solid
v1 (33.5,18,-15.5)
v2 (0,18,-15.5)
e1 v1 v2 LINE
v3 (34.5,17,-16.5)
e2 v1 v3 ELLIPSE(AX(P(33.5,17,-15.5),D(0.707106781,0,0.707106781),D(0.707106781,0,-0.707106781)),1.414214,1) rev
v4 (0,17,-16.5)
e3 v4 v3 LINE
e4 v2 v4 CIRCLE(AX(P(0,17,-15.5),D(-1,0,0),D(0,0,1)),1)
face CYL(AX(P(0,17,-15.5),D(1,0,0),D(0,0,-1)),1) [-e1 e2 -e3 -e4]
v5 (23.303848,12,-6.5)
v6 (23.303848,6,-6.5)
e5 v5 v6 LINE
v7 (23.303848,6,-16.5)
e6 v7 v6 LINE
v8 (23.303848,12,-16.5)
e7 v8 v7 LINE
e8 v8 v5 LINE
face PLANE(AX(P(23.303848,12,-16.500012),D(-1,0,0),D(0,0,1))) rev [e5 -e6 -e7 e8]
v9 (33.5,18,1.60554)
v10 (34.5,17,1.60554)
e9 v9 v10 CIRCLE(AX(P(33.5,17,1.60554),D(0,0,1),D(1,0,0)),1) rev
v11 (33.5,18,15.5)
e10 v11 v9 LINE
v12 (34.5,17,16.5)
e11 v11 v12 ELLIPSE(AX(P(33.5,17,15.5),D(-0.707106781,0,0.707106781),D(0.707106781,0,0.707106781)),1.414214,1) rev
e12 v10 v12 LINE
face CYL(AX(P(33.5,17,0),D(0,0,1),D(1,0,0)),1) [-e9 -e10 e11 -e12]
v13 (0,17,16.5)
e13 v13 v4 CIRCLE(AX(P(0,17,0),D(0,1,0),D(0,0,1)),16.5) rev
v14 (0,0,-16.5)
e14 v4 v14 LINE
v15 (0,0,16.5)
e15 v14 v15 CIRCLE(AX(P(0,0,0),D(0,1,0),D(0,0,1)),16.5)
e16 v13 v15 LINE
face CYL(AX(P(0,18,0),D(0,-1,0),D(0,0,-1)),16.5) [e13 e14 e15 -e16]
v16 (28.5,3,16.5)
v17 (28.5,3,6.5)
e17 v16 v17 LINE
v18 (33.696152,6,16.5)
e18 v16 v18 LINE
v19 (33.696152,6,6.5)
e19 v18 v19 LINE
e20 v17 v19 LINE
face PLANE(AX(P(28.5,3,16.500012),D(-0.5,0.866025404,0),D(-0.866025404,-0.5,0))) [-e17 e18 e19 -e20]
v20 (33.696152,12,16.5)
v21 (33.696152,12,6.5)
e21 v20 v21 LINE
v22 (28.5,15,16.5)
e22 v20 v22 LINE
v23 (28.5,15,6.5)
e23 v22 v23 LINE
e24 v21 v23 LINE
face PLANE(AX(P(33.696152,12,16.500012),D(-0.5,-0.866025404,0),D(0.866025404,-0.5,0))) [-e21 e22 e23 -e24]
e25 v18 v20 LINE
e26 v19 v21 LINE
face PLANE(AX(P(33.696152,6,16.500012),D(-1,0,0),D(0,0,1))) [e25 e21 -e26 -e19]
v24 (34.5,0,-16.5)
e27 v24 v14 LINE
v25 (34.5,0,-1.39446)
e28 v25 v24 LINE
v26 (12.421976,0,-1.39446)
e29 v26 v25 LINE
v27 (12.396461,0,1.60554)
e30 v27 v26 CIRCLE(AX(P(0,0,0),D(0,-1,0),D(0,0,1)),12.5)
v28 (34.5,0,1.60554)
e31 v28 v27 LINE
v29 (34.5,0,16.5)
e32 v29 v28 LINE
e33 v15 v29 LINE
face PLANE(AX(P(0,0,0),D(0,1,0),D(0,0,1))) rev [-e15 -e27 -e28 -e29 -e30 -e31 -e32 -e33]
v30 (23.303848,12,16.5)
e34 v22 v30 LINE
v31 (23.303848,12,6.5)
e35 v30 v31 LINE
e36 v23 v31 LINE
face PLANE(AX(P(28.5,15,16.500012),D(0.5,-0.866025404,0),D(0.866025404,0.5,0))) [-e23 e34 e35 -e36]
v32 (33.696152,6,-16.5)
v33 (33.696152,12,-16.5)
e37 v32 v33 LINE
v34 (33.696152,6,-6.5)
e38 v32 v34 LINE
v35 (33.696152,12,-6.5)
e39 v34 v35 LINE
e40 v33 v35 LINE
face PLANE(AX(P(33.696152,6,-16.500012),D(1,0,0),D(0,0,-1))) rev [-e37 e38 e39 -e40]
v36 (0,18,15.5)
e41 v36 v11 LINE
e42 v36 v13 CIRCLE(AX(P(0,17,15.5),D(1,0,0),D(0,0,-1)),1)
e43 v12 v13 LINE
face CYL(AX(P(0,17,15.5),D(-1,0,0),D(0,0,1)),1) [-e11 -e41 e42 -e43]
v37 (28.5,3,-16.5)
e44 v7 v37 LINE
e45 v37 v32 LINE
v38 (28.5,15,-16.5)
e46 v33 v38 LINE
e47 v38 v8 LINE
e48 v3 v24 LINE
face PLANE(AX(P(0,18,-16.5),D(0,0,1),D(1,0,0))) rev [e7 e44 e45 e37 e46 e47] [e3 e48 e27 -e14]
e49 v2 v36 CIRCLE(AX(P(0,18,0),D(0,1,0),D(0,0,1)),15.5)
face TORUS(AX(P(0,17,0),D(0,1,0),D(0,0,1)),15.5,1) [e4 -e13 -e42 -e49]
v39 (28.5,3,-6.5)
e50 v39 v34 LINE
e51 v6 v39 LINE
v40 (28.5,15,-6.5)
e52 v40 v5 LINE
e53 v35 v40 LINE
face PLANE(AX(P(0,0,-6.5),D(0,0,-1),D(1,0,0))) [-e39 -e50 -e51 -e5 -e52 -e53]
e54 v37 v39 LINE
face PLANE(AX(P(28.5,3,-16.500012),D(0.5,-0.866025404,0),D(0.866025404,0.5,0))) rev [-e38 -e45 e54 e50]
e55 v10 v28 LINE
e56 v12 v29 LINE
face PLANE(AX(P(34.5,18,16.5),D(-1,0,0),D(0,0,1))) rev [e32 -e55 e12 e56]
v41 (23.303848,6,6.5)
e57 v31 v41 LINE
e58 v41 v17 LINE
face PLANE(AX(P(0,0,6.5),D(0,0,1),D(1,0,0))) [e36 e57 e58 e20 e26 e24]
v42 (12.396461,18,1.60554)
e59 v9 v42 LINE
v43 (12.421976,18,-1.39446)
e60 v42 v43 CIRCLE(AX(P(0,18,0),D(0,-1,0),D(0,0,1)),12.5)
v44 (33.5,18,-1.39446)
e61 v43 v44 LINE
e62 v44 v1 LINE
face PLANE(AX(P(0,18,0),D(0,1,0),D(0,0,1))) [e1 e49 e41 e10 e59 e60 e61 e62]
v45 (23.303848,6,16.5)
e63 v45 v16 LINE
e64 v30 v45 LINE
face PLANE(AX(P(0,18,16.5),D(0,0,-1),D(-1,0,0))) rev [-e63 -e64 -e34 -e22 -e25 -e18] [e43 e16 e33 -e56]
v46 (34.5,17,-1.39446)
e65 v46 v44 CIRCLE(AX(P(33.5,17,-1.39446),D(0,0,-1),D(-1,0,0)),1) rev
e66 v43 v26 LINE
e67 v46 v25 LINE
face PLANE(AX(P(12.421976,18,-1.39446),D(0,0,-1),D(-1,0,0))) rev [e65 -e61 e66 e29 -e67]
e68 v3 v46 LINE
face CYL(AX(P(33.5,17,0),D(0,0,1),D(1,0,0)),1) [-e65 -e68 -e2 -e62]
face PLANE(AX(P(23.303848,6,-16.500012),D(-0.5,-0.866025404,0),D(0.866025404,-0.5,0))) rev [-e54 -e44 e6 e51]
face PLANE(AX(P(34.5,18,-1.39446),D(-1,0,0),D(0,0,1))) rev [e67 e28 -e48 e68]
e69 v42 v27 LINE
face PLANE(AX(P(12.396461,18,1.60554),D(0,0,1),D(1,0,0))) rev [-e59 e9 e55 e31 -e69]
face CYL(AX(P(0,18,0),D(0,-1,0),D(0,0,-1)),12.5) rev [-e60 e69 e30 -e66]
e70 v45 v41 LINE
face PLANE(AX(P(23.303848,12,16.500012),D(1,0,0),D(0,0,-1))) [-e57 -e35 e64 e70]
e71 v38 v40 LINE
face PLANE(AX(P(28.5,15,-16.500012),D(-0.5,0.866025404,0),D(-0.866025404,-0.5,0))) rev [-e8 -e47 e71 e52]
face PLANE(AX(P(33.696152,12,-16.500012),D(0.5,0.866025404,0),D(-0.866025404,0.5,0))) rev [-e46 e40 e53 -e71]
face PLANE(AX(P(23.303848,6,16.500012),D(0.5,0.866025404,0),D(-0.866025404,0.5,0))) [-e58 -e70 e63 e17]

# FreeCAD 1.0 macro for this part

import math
import FreeCAD as App
import Part
import Sketcher
from FreeCAD import Vector
Q = App.Units.Quantity


def edges_at(feature, points):
    """Names of the edges that pass closest to the given points."""
    edges = feature.Shape.Edges
    near = lambda p: min(range(len(edges)), key=lambda i: edges[i].distToShape(Part.Vertex(*p))[0])
    return sorted({f"Edge{near(p) + 1}" for p in points})

doc = App.newDocument("Part")
params = doc.addObject("Spreadsheet::Sheet", "Params")
for row, (alias, value) in enumerate([
    ("sketch1_radius", "12.5 mm"),
    ("sketch1_radius2", "16.5 mm"),
    ("sketch1_width", "34.5 mm"),
    ("pad1_length", "18 mm"),
    ("fillet_radius", "1 mm"),
    ("sketch2_height", "6 mm"),
    ("sketch2_length", "6 mm"),
    ("pocket1_length", "62.022054 mm"),
], start=1):
    params.set(f"A{row}", alias)
    params.set(f"B{row}", "=" + value)
    params.setAlias(f"B{row}", alias)

body = doc.addObject("PartDesign::Body", "Body")

sketch1 = body.newObject("Sketcher::SketchObject", "Sketch")
sketch1.AttachmentSupport = (doc.getObject("XZ_Plane"), [""])
sketch1.MapMode = "FlatFace"
sketch1.addGeometry([
    Part.LineSegment(Vector(0, 16.5, 0), Vector(34.5, 16.5, 0)),
    Part.LineSegment(Vector(34.5, 16.5, 0), Vector(34.5, 1.6, 0)),
    Part.LineSegment(Vector(34.5, 1.6, 0), Vector(12.4, 1.6, 0)),
    Part.ArcOfCircle(Part.Circle(Vector(0, 0, 0), Vector(0, 0, 1), 12.5), math.radians(7), math.radians(354)),
    Part.LineSegment(Vector(12.4, -1.4, 0), Vector(34.5, -1.4, 0)),
    Part.LineSegment(Vector(34.5, -1.4, 0), Vector(34.5, -16.5, 0)),
    Part.LineSegment(Vector(34.5, -16.5, 0), Vector(0, -16.5, 0)),
    Part.ArcOfCircle(Part.Circle(Vector(0, 0, 0), Vector(0, 0, 1), 16.5), math.radians(90), math.radians(270)),
], False)
sketch1.addConstraint([
    Sketcher.Constraint("Coincident", 0, 2, 1, 1),
    Sketcher.Constraint("Coincident", 1, 2, 2, 1),
    Sketcher.Constraint("Coincident", 2, 2, 3, 1),
    Sketcher.Constraint("Coincident", 3, 2, 4, 1),
    Sketcher.Constraint("Coincident", 4, 2, 5, 1),
    Sketcher.Constraint("Coincident", 5, 2, 6, 1),
    Sketcher.Constraint("Tangent", 6, 2, 7, 2),
    Sketcher.Constraint("Tangent", 7, 1, 0, 1),
    Sketcher.Constraint("Horizontal", 0),
    Sketcher.Constraint("Vertical", 1),
    Sketcher.Constraint("Horizontal", 2),
    Sketcher.Constraint("Horizontal", 4),
    Sketcher.Constraint("Vertical", 5),
    Sketcher.Constraint("Horizontal", 6),
    Sketcher.Constraint("Coincident", 3, 3, -1, 1),
    Sketcher.Constraint("Coincident", 7, 3, -1, 1),
    Sketcher.Constraint("Vertical", 1, 2, 4, 2),
    Sketcher.Constraint("Radius", 3, Q("12.5 mm")),
    Sketcher.Constraint("Radius", 7, Q("16.5 mm")),
    Sketcher.Constraint("DistanceX", 0, 1, 0, 2, Q("34.5 mm")),
    Sketcher.Constraint("DistanceY", 3, 2, 2, 2, Q("3 mm")),
    Sketcher.Constraint("DistanceX", 2, 2, 2, 1, Q("22.103539 mm")),
])
sketch1.setExpression("Constraints[17]", "Params.sketch1_radius")
sketch1.setExpression("Constraints[18]", "Params.sketch1_radius2")
sketch1.setExpression("Constraints[19]", "Params.sketch1_width")
pad1 = body.newObject("PartDesign::Pad", "Pad")
pad1.Profile = sketch1
pad1.setExpression("Length", "Params.pad1_length")
pad1.Reversed = True
doc.recompute()

fillet = body.newObject("PartDesign::Fillet", "Fillet")
fillet.Base = (pad1, edges_at(pad1, [
    (17.25, 18, -16.5),
    (-16.5, 18, 0),
    (17.25, 18, 16.5),
    (34.5, 18, 9.053),
    (34.5, 18, -8.947),
]))
fillet.setExpression("Radius", "Params.fillet_radius")

sketch2 = body.newObject("Sketcher::SketchObject", "Sketch001")
sketch2.AttachmentSupport = (doc.getObject("XY_Plane"), [""])
sketch2.MapMode = "FlatFace"
sketch2.AttachmentOffset = App.Placement(Vector(0, 0, 6.5), App.Rotation())
sketch2.addGeometry([
    Part.LineSegment(Vector(28, 15, 0), Vector(23, 12, 0)),
    Part.LineSegment(Vector(23, 12, 0), Vector(23, 6, 0)),
    Part.LineSegment(Vector(23, 6, 0), Vector(28, 3, 0)),
    Part.LineSegment(Vector(28, 3, 0), Vector(34, 6, 0)),
    Part.LineSegment(Vector(34, 6, 0), Vector(34, 12, 0)),
    Part.LineSegment(Vector(34, 12, 0), Vector(28, 15, 0)),
], False)
sketch2.addConstraint([
    Sketcher.Constraint("Coincident", 0, 2, 1, 1),
    Sketcher.Constraint("Coincident", 1, 2, 2, 1),
    Sketcher.Constraint("Coincident", 2, 2, 3, 1),
    Sketcher.Constraint("Coincident", 3, 2, 4, 1),
    Sketcher.Constraint("Coincident", 4, 2, 5, 1),
    Sketcher.Constraint("Coincident", 5, 2, 0, 1),
    Sketcher.Constraint("Vertical", 1),
    Sketcher.Constraint("Vertical", 4),
    Sketcher.Constraint("Parallel", 0, 3),
    Sketcher.Constraint("Parallel", 2, 5),
    Sketcher.Constraint("Horizontal", 1, 2, 3, 2),
    Sketcher.Constraint("Horizontal", 0, 2, 4, 2),
    Sketcher.Constraint("Vertical", 2, 2, 5, 2),
    Sketcher.Constraint("DistanceY", 1, 2, 1, 1, Q("6 mm")),
    Sketcher.Constraint("Angle", 0, Q("-150 deg")),
    Sketcher.Constraint("Distance", 0, Q("6 mm")),
    Sketcher.Constraint("DistanceY", -1, 1, 0, 2, Q("12 mm")),
    Sketcher.Constraint("DistanceX", -1, 1, 2, 2, Q("28.5 mm")),
])
sketch2.setExpression("Constraints[13]", "Params.sketch2_height")
sketch2.setExpression("Constraints[15]", "Params.sketch2_length")
pocket1 = body.newObject("PartDesign::Pocket", "Pocket")
pocket1.Profile = sketch2
pocket1.setExpression("Length", "Params.pocket1_length")
pocket1.Reversed = True
doc.recompute()

mirrored = body.newObject("PartDesign::Mirrored", "Mirrored")
mirrored.Originals = [pocket1]
mirrored.MirrorPlane = (doc.getObject("XY_Plane"), [""])
body.Tip = mirrored

doc.recompute()
